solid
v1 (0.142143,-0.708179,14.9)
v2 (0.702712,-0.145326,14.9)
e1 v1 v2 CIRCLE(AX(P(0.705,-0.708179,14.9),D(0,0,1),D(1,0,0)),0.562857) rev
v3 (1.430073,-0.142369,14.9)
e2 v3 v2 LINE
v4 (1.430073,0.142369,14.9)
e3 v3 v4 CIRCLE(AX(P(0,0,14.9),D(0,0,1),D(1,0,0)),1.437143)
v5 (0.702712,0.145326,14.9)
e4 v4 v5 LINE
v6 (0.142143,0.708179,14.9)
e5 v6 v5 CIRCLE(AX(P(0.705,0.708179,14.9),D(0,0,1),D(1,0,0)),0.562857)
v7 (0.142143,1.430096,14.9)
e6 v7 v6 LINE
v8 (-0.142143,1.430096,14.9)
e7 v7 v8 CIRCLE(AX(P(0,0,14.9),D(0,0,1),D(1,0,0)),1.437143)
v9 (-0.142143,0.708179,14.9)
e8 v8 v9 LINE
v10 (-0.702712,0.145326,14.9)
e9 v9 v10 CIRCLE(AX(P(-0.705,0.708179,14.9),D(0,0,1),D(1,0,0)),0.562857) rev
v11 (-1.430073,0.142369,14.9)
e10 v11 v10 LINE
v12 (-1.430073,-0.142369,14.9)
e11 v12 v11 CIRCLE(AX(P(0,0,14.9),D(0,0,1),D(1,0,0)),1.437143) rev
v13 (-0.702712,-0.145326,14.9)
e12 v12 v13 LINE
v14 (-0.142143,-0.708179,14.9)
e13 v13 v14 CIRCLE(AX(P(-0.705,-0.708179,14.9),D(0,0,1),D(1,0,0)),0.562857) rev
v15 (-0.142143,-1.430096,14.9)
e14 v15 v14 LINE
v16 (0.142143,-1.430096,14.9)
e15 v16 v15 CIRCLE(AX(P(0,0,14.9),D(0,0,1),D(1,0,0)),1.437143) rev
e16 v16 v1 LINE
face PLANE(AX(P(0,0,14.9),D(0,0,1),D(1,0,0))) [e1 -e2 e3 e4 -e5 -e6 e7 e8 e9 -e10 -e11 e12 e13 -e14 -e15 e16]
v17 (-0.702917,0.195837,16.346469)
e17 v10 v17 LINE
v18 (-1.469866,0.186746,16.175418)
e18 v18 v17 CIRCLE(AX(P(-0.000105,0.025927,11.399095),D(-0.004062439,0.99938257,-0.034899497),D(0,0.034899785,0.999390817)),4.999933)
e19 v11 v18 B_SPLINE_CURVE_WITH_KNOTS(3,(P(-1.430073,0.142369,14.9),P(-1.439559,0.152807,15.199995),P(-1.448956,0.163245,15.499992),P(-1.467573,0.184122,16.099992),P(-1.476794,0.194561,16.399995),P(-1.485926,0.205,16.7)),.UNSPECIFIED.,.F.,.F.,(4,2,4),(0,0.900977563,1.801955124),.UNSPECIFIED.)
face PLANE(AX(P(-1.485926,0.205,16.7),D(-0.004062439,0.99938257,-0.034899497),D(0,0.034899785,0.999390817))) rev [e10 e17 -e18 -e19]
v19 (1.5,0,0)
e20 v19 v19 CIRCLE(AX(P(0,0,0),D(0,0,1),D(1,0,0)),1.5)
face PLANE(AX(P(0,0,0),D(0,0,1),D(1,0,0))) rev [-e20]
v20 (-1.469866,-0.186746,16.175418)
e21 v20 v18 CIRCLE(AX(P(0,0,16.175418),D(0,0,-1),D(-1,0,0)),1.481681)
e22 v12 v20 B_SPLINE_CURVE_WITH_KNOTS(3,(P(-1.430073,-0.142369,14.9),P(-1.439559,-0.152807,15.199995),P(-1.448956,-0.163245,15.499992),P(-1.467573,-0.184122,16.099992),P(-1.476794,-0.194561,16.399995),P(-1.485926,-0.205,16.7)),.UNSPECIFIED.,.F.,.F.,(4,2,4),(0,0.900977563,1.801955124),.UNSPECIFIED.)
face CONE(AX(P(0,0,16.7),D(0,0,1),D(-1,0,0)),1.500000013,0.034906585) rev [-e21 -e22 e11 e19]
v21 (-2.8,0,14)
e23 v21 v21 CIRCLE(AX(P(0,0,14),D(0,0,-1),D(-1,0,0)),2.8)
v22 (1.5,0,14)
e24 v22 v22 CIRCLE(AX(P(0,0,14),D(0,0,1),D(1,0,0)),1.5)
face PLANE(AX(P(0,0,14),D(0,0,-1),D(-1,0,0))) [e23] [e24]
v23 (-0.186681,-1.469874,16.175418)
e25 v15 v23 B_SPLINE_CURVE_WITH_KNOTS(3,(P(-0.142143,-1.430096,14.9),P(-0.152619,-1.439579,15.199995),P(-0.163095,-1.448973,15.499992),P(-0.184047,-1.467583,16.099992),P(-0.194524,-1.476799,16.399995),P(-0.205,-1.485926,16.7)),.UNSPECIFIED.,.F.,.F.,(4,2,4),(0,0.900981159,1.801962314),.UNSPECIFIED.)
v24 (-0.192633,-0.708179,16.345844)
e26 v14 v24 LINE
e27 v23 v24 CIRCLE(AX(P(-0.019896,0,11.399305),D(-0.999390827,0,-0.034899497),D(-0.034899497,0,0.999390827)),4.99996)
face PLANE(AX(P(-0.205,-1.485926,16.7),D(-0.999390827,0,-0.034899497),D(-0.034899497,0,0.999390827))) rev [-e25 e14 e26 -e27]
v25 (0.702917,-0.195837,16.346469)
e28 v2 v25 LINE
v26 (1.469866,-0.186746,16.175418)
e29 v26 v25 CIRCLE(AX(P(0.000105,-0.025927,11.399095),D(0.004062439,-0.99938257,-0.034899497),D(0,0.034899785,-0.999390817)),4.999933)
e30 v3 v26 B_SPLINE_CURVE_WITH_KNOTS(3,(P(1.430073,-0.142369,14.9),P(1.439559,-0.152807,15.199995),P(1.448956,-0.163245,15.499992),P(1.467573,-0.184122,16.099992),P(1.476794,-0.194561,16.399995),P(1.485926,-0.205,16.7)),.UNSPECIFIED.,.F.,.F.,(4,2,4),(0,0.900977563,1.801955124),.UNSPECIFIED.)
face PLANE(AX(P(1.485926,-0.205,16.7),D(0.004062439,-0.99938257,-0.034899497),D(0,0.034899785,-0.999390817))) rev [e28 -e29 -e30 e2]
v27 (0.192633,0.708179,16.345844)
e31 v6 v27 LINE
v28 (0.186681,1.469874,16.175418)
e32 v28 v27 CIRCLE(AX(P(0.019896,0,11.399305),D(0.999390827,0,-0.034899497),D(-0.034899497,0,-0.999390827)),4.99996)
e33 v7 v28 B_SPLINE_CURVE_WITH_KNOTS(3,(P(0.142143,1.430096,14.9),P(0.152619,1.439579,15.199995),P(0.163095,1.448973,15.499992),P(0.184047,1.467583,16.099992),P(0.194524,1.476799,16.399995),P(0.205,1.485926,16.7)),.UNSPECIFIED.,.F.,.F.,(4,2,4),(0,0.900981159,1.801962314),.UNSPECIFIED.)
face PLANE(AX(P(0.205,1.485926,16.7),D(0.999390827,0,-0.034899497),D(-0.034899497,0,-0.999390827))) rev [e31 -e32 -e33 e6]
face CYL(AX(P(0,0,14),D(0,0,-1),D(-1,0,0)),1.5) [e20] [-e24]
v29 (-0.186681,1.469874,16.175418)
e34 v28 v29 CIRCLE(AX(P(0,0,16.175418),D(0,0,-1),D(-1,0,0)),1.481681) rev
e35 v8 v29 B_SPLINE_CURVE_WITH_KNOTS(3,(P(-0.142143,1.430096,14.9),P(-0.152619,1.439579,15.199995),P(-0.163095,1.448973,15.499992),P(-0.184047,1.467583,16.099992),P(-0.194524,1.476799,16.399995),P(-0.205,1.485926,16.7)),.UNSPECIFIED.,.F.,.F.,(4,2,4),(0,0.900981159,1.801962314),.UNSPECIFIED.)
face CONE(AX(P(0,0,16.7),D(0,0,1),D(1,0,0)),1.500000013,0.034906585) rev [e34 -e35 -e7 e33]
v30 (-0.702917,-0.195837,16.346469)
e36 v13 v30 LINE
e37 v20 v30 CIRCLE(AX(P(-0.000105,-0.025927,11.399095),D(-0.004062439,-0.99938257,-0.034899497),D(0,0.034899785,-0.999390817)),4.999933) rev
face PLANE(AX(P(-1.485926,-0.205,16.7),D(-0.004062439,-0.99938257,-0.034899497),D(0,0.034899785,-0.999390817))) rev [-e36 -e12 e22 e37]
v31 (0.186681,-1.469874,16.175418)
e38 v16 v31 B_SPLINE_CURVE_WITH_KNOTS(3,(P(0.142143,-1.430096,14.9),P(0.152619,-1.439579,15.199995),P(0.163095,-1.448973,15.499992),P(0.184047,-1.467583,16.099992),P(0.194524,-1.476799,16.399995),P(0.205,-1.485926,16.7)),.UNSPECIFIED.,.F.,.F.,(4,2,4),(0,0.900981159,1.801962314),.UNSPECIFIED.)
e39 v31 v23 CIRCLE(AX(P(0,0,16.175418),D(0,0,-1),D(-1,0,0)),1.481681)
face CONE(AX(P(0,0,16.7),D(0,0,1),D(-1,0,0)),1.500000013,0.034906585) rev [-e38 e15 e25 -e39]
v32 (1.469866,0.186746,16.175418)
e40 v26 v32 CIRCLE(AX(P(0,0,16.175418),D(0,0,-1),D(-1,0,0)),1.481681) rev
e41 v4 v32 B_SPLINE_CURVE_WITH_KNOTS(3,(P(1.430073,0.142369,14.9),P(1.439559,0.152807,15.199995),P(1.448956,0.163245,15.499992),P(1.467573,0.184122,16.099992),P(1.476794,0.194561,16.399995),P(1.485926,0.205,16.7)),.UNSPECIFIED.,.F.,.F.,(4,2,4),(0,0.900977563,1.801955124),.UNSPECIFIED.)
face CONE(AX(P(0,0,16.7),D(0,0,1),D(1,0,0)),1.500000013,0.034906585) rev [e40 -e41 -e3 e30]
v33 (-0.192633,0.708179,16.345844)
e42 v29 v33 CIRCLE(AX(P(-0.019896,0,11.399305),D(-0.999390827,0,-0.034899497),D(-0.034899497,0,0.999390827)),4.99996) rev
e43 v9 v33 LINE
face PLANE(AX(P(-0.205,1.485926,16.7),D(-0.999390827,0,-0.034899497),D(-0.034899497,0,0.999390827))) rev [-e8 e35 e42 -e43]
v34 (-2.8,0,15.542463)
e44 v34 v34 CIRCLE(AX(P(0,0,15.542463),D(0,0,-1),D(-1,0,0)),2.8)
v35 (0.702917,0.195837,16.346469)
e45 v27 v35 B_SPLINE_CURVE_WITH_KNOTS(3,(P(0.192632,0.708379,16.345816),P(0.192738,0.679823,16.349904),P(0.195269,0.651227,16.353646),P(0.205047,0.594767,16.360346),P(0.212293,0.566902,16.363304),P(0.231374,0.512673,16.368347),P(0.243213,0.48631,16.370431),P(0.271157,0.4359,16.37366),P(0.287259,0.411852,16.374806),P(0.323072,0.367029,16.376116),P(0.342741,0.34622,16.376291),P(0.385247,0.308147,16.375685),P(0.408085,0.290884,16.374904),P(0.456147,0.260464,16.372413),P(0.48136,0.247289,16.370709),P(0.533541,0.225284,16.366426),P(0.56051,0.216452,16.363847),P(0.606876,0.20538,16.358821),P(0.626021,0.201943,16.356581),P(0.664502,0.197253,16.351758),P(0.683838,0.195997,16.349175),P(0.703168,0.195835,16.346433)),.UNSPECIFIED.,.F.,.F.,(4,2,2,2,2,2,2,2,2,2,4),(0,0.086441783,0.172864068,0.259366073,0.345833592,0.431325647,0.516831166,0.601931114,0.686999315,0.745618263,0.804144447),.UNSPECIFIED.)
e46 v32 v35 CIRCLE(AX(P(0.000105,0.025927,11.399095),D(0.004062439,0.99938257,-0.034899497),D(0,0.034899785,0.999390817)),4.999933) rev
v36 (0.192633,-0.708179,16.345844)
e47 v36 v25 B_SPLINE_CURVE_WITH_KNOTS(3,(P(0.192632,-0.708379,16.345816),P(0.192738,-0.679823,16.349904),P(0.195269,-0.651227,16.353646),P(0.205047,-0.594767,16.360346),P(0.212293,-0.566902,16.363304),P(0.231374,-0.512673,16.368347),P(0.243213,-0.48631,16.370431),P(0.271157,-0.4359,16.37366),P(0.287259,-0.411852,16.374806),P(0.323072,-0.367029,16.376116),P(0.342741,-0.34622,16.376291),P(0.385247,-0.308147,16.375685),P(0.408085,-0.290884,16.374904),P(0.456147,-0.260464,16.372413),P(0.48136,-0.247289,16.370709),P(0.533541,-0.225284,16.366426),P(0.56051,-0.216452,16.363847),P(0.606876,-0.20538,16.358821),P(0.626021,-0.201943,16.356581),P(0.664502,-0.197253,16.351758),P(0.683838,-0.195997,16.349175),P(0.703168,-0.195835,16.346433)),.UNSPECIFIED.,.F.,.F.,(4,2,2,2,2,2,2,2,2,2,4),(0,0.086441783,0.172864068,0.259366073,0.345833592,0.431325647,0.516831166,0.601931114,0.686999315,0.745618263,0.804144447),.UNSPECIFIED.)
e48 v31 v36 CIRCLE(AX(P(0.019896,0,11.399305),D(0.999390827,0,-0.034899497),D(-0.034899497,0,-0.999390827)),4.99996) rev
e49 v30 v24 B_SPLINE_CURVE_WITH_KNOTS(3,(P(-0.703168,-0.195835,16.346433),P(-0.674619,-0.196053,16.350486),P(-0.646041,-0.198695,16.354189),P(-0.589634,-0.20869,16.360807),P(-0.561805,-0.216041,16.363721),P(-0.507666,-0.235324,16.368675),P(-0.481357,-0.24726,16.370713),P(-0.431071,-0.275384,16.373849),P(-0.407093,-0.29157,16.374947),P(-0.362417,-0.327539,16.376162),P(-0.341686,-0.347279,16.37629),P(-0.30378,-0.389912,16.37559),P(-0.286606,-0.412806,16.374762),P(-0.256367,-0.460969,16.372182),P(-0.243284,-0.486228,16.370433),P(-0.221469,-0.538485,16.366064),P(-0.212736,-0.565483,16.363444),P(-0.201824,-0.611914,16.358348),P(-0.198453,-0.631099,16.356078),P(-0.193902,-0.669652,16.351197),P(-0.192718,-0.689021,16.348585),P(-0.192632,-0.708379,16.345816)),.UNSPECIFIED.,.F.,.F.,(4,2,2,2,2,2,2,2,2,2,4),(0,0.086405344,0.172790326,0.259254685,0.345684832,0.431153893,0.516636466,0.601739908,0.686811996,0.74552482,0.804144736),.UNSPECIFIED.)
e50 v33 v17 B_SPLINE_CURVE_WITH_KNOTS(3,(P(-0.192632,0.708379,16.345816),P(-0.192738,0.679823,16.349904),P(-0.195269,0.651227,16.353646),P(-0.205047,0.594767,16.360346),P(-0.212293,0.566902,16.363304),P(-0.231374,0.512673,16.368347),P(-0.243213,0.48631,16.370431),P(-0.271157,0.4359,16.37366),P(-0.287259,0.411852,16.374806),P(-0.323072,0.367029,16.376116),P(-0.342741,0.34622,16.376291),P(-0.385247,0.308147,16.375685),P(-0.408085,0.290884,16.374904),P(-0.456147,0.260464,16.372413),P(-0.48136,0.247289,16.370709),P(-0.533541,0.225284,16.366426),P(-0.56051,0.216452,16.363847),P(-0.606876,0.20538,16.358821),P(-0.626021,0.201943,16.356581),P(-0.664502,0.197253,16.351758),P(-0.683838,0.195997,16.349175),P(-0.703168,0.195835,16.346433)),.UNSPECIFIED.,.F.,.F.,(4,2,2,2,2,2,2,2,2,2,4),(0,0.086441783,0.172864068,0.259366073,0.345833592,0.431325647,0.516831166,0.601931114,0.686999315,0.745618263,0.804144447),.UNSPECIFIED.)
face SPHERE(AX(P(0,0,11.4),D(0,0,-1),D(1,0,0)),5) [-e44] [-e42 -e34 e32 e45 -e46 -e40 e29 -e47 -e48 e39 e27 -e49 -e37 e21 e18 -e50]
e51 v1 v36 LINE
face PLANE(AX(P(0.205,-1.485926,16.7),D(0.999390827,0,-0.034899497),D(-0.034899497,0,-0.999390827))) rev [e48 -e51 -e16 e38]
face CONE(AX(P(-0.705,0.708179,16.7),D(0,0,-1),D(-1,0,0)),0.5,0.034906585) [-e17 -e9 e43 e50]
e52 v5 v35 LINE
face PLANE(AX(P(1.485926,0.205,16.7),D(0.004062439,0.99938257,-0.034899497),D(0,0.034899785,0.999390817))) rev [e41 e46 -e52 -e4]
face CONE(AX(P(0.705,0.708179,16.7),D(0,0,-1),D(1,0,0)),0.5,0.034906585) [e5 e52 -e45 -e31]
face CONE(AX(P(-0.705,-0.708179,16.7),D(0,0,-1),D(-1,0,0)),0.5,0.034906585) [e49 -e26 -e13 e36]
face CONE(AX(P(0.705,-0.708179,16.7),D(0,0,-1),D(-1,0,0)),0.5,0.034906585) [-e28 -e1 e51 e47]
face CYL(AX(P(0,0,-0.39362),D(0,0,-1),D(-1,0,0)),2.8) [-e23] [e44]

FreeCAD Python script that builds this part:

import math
import FreeCAD as App
import Part
import Sketcher

doc = App.newDocument("Part")
body = doc.addObject("PartDesign::Body", "Body")

sketch1 = doc.addObject("Sketcher::SketchObject", "Sketch")
body.addObject(sketch1)
sketch1.AttachmentSupport = (doc.XY_Plane, [""])
sketch1.MapMode = "FlatFace"
sketch1.addGeometry(Part.Circle(App.Vector(0, 0, 0), App.Vector(0, 0, 1), 1.5), False)
sketch1.addConstraint([
    Sketcher.Constraint("Coincident", 0, 3, -1, 1),
    Sketcher.Constraint("Diameter", 0, 3.0),
])
pad1 = doc.addObject("PartDesign::Pad", "Pad")
body.addObject(pad1)
pad1.Profile = sketch1
pad1.Length = 14

sketch2 = doc.addObject("Sketcher::SketchObject", "Sketch001")
body.addObject(sketch2)
sketch2.AttachmentSupport = (doc.XZ_Plane, [""])
sketch2.MapMode = "FlatFace"
sketch2.addGeometry([
    Part.LineSegment(App.Vector(2.8, 14, 0), App.Vector(0, 14, 0)),
    Part.LineSegment(App.Vector(0, 14, 0), App.Vector(0, 16.4, 0)),
    Part.ArcOfCircle(Part.Circle(App.Vector(0, 11.4, 0), App.Vector(0, 0, 1), 5), math.radians(55.944203), math.radians(90)),
    Part.LineSegment(App.Vector(2.8, 15.542463, 0), App.Vector(2.8, 14, 0)),
], False)
sketch2.addConstraint([
    Sketcher.Constraint("Coincident", 0, 2, 1, 1),
    Sketcher.Constraint("Coincident", 1, 2, 2, 2),
    Sketcher.Constraint("Coincident", 2, 1, 3, 1),
    Sketcher.Constraint("Coincident", 3, 2, 0, 1),
    Sketcher.Constraint("Horizontal", 0),
    Sketcher.Constraint("Vertical", 1),
    Sketcher.Constraint("Vertical", 3),
    Sketcher.Constraint("PointOnObject", 2, 3, -2),
    Sketcher.Constraint("PointOnObject", 0, 2, -2),
    Sketcher.Constraint("Radius", 2, 5.0),
    Sketcher.Constraint("DistanceX", 0, 2, 0, 1, 2.8),
    Sketcher.Constraint("DistanceY", 1, 1, 1, 2, 2.4),
    Sketcher.Constraint("DistanceY", -1, 1, 0, 2, 14.0),
])
revolution = doc.addObject("PartDesign::Revolution", "Revolution")
body.addObject(revolution)
revolution.Profile = sketch2
revolution.ReferenceAxis = (sketch2, ["V_Axis"])
revolution.Angle = 360

sketch3 = doc.addObject("Sketcher::SketchObject", "Sketch002")
body.addObject(sketch3)
sketch3.AttachmentSupport = (doc.XY_Plane, [""])
sketch3.MapMode = "FlatFace"
sketch3.AttachmentOffset = App.Placement(App.Vector(0, 0, 16.7), App.Rotation())
sketch3.addGeometry([
    Part.ArcOfCircle(Part.Circle(App.Vector(0, 0, 0), App.Vector(0, 0, 1), 1.5), math.radians(82.144994), math.radians(97.855006)),
    Part.LineSegment(App.Vector(0.205, 1.485926, 0), App.Vector(0.205, 0.708179, 0)),
    Part.ArcOfCircle(Part.Circle(App.Vector(0.705, 0.708179, 0), App.Vector(0, 0, 1), 0.5), math.radians(180), math.radians(269.767097)),
    Part.LineSegment(App.Vector(0.702968, 0.208183, 0), App.Vector(1.485926, 0.205, 0)),
    Part.ArcOfCircle(Part.Circle(App.Vector(0, 0, 0), App.Vector(0, 0, 1), 1.5), math.radians(-7.855006), math.radians(7.855006)),
    Part.LineSegment(App.Vector(1.485926, -0.205, 0), App.Vector(0.702968, -0.208183, 0)),
    Part.ArcOfCircle(Part.Circle(App.Vector(0.705, -0.708179, 0), App.Vector(0, 0, 1), 0.5), math.radians(90.232903), math.radians(180)),
    Part.LineSegment(App.Vector(0.205, -0.708179, 0), App.Vector(0.205, -1.485926, 0)),
    Part.ArcOfCircle(Part.Circle(App.Vector(0, 0, 0), App.Vector(0, 0, 1), 1.5), math.radians(-97.855006), math.radians(-82.144994)),
    Part.LineSegment(App.Vector(-0.205, -1.485926, 0), App.Vector(-0.205, -0.708179, 0)),
    Part.ArcOfCircle(Part.Circle(App.Vector(-0.705, -0.708179, 0), App.Vector(0, 0, 1), 0.5), math.radians(0), math.radians(89.767097)),
    Part.LineSegment(App.Vector(-0.702968, -0.208183, 0), App.Vector(-1.485926, -0.205, 0)),
    Part.ArcOfCircle(Part.Circle(App.Vector(0, 0, 0), App.Vector(0, 0, 1), 1.5), math.radians(172.144994), math.radians(187.855006)),
    Part.LineSegment(App.Vector(-1.485926, 0.205, 0), App.Vector(-0.702968, 0.208183, 0)),
    Part.ArcOfCircle(Part.Circle(App.Vector(-0.705, 0.708179, 0), App.Vector(0, 0, 1), 0.5), math.radians(-89.767097), math.radians(0)),
    Part.LineSegment(App.Vector(-0.205, 0.708179, 0), App.Vector(-0.205, 1.485926, 0)),
], False)
sketch3.addConstraint([
    Sketcher.Constraint("Coincident", 0, 1, 1, 1),
    Sketcher.Constraint("Tangent", 1, 2, 2, 1),
    Sketcher.Constraint("Tangent", 2, 2, 3, 1),
    Sketcher.Constraint("Coincident", 3, 2, 4, 2),
    Sketcher.Constraint("Coincident", 4, 1, 5, 1),
    Sketcher.Constraint("Tangent", 5, 2, 6, 1),
    Sketcher.Constraint("Tangent", 6, 2, 7, 1),
    Sketcher.Constraint("Coincident", 7, 2, 8, 2),
    Sketcher.Constraint("Coincident", 8, 1, 9, 1),
    Sketcher.Constraint("Tangent", 9, 2, 10, 1),
    Sketcher.Constraint("Tangent", 10, 2, 11, 1),
    Sketcher.Constraint("Coincident", 11, 2, 12, 2),
    Sketcher.Constraint("Coincident", 12, 1, 13, 1),
    Sketcher.Constraint("Tangent", 13, 2, 14, 1),
    Sketcher.Constraint("Tangent", 14, 2, 15, 1),
    Sketcher.Constraint("Coincident", 15, 2, 0, 2),
    Sketcher.Constraint("Vertical", 1),
    Sketcher.Constraint("Vertical", 7),
    Sketcher.Constraint("Vertical", 9),
    Sketcher.Constraint("Vertical", 15),
    Sketcher.Constraint("Coincident", 0, 3, -1, 1),
    Sketcher.Constraint("Coincident", 4, 3, -1, 1),
    Sketcher.Constraint("Coincident", 8, 3, -1, 1),
    Sketcher.Constraint("Coincident", 12, 3, -1, 1),
    Sketcher.Constraint("Equal", 0, 4),
    Sketcher.Constraint("Equal", 2, 6),
    Sketcher.Constraint("Equal", 4, 8),
    Sketcher.Constraint("Equal", 6, 10),
    Sketcher.Constraint("Equal", 8, 12),
    Sketcher.Constraint("Equal", 10, 14),
    Sketcher.Constraint("Symmetric", 2, 3, 10, 3, -1, 1),
    Sketcher.Constraint("Symmetric", 6, 3, 14, 3, -1, 1),
    Sketcher.Constraint("Symmetric", 6, 3, 10, 3, -2),
    Sketcher.Constraint("Parallel", 3, 11),
    Sketcher.Constraint("Parallel", 5, 13),
    Sketcher.Constraint("Horizontal", 4, 1, 11, 2),
    Sketcher.Constraint("Radius", 0, 1.5),
    Sketcher.Constraint("Radius", 2, 0.5),
    Sketcher.Constraint("DistanceX", 10, 3, 6, 3, 1.41),
    Sketcher.Constraint("DistanceY", 4, 1, 3, 2, 0.41),
    Sketcher.Constraint("DistanceY", 1, 2, 1, 1, 0.777747),
])
pocket1 = doc.addObject("PartDesign::Pocket", "Pocket")
body.addObject(pocket1)
pocket1.Profile = sketch3
pocket1.Length = 1.8
pocket1.TaperAngle = -2

doc.recompute()
